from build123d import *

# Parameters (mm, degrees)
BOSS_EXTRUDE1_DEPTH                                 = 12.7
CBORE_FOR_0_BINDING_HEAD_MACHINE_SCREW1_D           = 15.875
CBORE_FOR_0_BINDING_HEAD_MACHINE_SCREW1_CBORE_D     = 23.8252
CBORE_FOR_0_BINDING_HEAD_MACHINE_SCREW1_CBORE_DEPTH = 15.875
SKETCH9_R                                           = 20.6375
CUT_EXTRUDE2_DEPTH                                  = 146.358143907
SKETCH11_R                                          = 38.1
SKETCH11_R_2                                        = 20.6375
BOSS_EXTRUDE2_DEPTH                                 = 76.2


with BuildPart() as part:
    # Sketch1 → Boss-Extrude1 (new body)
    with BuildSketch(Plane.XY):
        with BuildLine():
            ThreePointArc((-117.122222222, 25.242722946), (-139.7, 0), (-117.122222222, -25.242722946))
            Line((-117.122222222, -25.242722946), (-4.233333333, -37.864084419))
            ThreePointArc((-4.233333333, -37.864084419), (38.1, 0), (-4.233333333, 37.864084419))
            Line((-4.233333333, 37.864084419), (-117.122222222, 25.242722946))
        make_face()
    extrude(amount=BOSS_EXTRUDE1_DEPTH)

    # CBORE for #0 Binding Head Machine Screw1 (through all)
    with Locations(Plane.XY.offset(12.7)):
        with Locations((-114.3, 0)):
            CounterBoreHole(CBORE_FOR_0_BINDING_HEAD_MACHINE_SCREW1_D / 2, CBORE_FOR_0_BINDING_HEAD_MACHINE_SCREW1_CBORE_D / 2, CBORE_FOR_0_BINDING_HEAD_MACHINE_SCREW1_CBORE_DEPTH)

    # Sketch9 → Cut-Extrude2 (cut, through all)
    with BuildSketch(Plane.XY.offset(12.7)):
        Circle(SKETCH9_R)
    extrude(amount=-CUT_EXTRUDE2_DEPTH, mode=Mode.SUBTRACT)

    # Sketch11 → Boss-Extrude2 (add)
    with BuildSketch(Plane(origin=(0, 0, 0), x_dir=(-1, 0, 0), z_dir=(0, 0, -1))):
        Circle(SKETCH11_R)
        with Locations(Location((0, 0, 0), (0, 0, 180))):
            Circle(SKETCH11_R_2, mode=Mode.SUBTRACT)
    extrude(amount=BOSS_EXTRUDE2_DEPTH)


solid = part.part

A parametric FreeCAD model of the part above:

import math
import FreeCAD as App
import Part
import Sketcher

V = App.Vector
Q = App.Units.Quantity

doc = App.newDocument("Part")
body = doc.addObject("PartDesign::Body", "Body")

sketch1 = body.newObject("Sketcher::SketchObject", "Sketch")
sketch1.AttachmentSupport = (doc.getObject("XY_Plane"), [""])
sketch1.MapMode = "FlatFace"
sketch1.addGeometry(Part.ArcOfCircle(Part.Circle(V(-114, 0, 0), V(0, 0, 1), 25), math.radians(96), math.radians(264)), False)
sketch1.addGeometry(Part.LineSegment(V(-117, -25, 0), V(-4, -38, 0)), False)
sketch1.addGeometry(Part.ArcOfCircle(Part.Circle(V(0, 0, 0), V(0, 0, 1), 38), math.radians(-96), math.radians(96)), False)
sketch1.addGeometry(Part.LineSegment(V(-4, 38, 0), V(-117, 25, 0)), False)
sketch1.addConstraint(Sketcher.Constraint("Tangent", 0, 2, 1, 1))
sketch1.addConstraint(Sketcher.Constraint("Tangent", 1, 2, 2, 1))
sketch1.addConstraint(Sketcher.Constraint("Tangent", 2, 2, 3, 1))
sketch1.addConstraint(Sketcher.Constraint("Tangent", 3, 2, 0, 1))
sketch1.addConstraint(Sketcher.Constraint("Coincident", 2, 3, -1, 1))
sketch1.addConstraint(Sketcher.Constraint("PointOnObject", 0, 3, -1))
sketch1.addConstraint(Sketcher.Constraint("Radius", 0, Q("1 in")))
sketch1.addConstraint(Sketcher.Constraint("Radius", 2, Q("1.5 in")))
sketch1.addConstraint(Sketcher.Constraint("DistanceX", 0, 3, -1, 1, Q("4.5 in")))
pad1 = body.newObject("PartDesign::Pad", "Pad")
pad1.Profile = sketch1
pad1.Length = Q("0.5 in")

sketch2 = body.newObject("Sketcher::SketchObject", "Sketch001")
sketch2.AttachmentSupport = (doc.getObject("XY_Plane"), [""])
sketch2.MapMode = "FlatFace"
sketch2.AttachmentOffset = App.Placement(V(0, 0, 0.5 * 25.4), App.Rotation())
sketch2.addGeometry(Part.Circle(V(-114, 0, 0), V(0, 0, 1), 8), False)
sketch2.addConstraint(Sketcher.Constraint("PointOnObject", 0, 3, -1))
sketch2.addConstraint(Sketcher.Constraint("Diameter", 0, Q("0.625 in")))
sketch2.addConstraint(Sketcher.Constraint("DistanceX", 0, 3, -1, 1, Q("4.5 in")))
doc.recompute()
hole = body.newObject("PartDesign::Hole", "Hole")
hole.Profile = sketch2
hole.ThreadType = "None"
hole.Diameter = Q("0.625 in")
hole.DepthType = "ThroughAll"
hole.HoleCutType = "Counterbore"
hole.HoleCutDiameter = Q("0.938 in")
hole.HoleCutDepth = Q("0.625 in")

sketch3 = body.newObject("Sketcher::SketchObject", "Sketch002")
sketch3.AttachmentSupport = (doc.getObject("XY_Plane"), [""])
sketch3.MapMode = "FlatFace"
sketch3.AttachmentOffset = App.Placement(V(0, 0, 0.5 * 25.4), App.Rotation())
sketch3.addGeometry(Part.Circle(V(0, 0, 0), V(0, 0, 1), 21), False)
sketch3.addConstraint(Sketcher.Constraint("Coincident", 0, 3, -1, 1))
sketch3.addConstraint(Sketcher.Constraint("Diameter", 0, Q("1.625 in")))
pocket1 = body.newObject("PartDesign::Pocket", "Pocket")
pocket1.Profile = sketch3
pocket1.Type = "ThroughAll"

sketch4 = body.newObject("Sketcher::SketchObject", "Sketch003")
sketch4.AttachmentSupport = (doc.getObject("XY_Plane"), [""])
sketch4.MapMode = "FlatFace"
sketch4.addGeometry(Part.Circle(V(0, 0, 0), V(0, 0, 1), 38), False)
sketch4.addGeometry(Part.Circle(V(0, 0, 0), V(0, 0, 1), 21), False)
sketch4.addConstraint(Sketcher.Constraint("Coincident", 0, 3, -1, 1))
sketch4.addConstraint(Sketcher.Constraint("Coincident", 1, 3, -1, 1))
sketch4.addConstraint(Sketcher.Constraint("Diameter", 0, Q("3 in")))
sketch4.addConstraint(Sketcher.Constraint("Diameter", 1, Q("1.625 in")))
pad2 = body.newObject("PartDesign::Pad", "Pad001")
pad2.Profile = sketch4
pad2.Length = Q("3 in")
pad2.Reversed = True

doc.recompute()
